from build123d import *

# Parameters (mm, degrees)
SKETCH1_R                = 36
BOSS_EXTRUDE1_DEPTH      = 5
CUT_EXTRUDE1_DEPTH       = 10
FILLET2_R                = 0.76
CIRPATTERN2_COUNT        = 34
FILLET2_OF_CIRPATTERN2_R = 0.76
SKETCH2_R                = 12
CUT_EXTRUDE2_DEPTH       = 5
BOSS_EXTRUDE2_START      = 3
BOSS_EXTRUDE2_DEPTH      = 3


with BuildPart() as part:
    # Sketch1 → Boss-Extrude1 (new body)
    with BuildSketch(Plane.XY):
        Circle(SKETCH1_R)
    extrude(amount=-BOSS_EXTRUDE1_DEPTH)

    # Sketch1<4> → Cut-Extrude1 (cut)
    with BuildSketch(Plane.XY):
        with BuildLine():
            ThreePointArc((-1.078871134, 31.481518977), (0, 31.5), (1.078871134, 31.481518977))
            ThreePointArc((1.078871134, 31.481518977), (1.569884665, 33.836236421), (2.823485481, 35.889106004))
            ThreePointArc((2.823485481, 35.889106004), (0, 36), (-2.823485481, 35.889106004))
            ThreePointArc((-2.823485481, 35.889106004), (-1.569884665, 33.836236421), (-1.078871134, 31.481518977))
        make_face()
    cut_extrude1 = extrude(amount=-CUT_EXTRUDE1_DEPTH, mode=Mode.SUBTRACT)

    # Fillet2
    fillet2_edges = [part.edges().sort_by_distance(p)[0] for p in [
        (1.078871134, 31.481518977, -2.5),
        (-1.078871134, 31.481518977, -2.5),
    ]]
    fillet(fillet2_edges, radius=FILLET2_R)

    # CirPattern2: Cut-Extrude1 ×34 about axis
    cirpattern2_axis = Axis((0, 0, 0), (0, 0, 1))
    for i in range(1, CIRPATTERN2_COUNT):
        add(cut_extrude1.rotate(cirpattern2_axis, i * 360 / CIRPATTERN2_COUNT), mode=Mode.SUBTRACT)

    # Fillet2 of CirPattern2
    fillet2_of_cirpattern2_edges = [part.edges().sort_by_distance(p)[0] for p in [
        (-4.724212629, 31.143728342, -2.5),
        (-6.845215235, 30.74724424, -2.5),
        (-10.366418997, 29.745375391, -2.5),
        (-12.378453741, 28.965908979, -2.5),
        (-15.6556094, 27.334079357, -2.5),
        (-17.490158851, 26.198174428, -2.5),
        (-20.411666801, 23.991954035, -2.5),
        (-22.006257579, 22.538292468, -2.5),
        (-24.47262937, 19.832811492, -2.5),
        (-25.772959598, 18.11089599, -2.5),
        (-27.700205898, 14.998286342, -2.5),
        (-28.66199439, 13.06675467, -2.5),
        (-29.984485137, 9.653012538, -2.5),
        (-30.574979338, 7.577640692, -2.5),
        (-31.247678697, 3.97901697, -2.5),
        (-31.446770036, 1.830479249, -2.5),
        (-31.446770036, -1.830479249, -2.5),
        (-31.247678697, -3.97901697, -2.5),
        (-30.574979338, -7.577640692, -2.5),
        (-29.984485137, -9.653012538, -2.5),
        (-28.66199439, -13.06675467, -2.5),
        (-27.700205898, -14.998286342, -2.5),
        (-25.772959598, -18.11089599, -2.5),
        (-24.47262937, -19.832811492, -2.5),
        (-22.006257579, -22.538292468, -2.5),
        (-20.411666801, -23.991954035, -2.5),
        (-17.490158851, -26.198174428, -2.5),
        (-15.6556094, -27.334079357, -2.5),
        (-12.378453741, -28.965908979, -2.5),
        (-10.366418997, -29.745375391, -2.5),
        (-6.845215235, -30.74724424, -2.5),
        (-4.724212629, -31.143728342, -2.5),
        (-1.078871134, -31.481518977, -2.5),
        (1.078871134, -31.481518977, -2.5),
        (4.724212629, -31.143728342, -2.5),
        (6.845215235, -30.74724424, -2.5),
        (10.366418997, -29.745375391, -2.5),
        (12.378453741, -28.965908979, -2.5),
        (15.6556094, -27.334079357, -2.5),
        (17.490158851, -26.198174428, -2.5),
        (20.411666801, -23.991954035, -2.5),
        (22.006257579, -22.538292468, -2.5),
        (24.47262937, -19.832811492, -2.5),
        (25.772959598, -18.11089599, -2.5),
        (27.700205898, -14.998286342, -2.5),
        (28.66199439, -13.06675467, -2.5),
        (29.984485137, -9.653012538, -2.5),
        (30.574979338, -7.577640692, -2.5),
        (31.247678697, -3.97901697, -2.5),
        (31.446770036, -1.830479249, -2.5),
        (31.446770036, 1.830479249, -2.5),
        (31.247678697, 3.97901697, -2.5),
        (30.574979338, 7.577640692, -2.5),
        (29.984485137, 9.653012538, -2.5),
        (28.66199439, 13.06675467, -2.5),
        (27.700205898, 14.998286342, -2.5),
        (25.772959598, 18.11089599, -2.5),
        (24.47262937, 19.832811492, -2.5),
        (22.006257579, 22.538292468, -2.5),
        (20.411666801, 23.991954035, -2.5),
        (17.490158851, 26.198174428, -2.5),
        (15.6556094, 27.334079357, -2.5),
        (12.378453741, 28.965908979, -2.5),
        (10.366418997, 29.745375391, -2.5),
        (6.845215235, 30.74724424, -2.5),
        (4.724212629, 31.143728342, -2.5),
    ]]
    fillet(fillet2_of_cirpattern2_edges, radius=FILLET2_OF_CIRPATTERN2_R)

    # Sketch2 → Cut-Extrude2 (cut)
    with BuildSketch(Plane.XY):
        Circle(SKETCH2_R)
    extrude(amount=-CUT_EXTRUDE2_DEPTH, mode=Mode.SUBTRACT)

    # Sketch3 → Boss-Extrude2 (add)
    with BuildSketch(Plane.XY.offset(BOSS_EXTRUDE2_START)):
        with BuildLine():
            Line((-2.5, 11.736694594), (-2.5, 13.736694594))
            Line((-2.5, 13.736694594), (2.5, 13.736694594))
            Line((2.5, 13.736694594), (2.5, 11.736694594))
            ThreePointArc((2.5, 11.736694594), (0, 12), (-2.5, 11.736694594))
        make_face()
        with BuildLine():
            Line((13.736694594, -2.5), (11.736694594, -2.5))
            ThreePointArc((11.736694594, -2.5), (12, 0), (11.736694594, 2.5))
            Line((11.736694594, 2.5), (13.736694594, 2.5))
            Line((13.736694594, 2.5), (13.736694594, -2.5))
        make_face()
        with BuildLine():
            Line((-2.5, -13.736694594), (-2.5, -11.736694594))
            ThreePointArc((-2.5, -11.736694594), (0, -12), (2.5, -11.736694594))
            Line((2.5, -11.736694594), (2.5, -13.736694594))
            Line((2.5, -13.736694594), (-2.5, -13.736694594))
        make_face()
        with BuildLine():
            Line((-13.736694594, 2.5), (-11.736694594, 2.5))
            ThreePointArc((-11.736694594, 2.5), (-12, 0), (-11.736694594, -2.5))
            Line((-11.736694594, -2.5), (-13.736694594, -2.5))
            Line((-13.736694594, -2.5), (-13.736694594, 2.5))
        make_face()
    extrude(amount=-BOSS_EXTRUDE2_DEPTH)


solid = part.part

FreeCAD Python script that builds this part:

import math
import FreeCAD as App
import Part
import Sketcher


def edges_at(feature, points):
    """Names of the edges that pass closest to the given points."""
    edges = feature.Shape.Edges
    near = lambda p: min(range(len(edges)), key=lambda i: edges[i].distToShape(Part.Vertex(*p))[0])
    return sorted({f"Edge{near(p) + 1}" for p in points})

doc = App.newDocument("Part")
body = doc.addObject("PartDesign::Body", "Body")

# Sketch on XY plane
sketch1 = body.newObject("Sketcher::SketchObject", "Sketch")
sketch1.AttachmentSupport = (doc.getObject("XY_Plane"), [""])
sketch1.MapMode = "FlatFace"
sketch1.addGeometry(Part.Circle(App.Vector(0, 0, 0), App.Vector(0, 0, 1), 36), False)
sketch1.addConstraint([
    Sketcher.Constraint("Coincident", 0, 3, -1, 1),
    Sketcher.Constraint("Diameter", 0, 72.0),
])
pad1 = body.newObject("PartDesign::Pad", "Pad")
pad1.Profile = sketch1
pad1.Length = 5
pad1.Reversed = True

# Sketch on XY plane
sketch2 = body.newObject("Sketcher::SketchObject", "Sketch001")
sketch2.AttachmentSupport = (doc.getObject("XY_Plane"), [""])
sketch2.MapMode = "FlatFace"
sketch2.addGeometry([
    Part.ArcOfCircle(Part.Circle(App.Vector(0, -0.000001, 0), App.Vector(0, 0, 1), 31.500001), math.radians(88.037243), math.radians(91.962757)),
    Part.ArcOfCircle(Part.Circle(App.Vector(8.129253, 31.239903, 0), App.Vector(0, 0, 1), 7.05452), math.radians(138.773384), math.radians(178.037243)),
    Part.ArcOfCircle(Part.Circle(App.Vector(0, 0, 0), App.Vector(0, 0, 1), 36), math.radians(85.501663), math.radians(94.498337)),
    Part.ArcOfCircle(Part.Circle(App.Vector(-8.129253, 31.239903, 0), App.Vector(0, 0, 1), 7.05452), math.radians(1.962757), math.radians(41.226616)),
], False)
sketch2.addConstraint([
    Sketcher.Constraint("Coincident", 0, 1, 1, 2),
    Sketcher.Constraint("Coincident", 1, 1, 2, 1),
    Sketcher.Constraint("Coincident", 2, 2, 3, 2),
    Sketcher.Constraint("Coincident", 3, 1, 0, 2),
    Sketcher.Constraint("Coincident", 0, 3, -1, 1),
    Sketcher.Constraint("Coincident", 2, 3, -1, 1),
    Sketcher.Constraint("Equal", 1, 3),
    Sketcher.Constraint("Symmetric", 1, 3, 3, 3, -2),
    Sketcher.Constraint("Radius", 2, 36.0),
    Sketcher.Constraint("Radius", 0, 31.500001),
    Sketcher.Constraint("Radius", 1, 7.05452),
    Sketcher.Constraint("DistanceX", -1, 1, 0, 1, 1.078871),
    Sketcher.Constraint("DistanceX", 3, 3, 1, 1, 10.952738),
])
pocket1 = body.newObject("PartDesign::Pocket", "Pocket")
pocket1.Profile = sketch2
pocket1.Length = 10
doc.recompute()

fillet = body.newObject("PartDesign::Fillet", "Fillet")
fillet.Base = (pocket1, edges_at(pocket1, [(1.079, 31.482, -2.5), (-1.079, 31.482, -2.5)]))
fillet.Radius = 0.76
doc.recompute()

polarpattern = body.newObject("PartDesign::PolarPattern", "PolarPattern")
polarpattern.Originals = [pocket1]
polarpattern.Axis = (doc.getObject("Z_Axis"), [""])
polarpattern.Angle = 360
polarpattern.Occurrences = 34
body.Tip = polarpattern
doc.recompute()

fillet2 = body.newObject("PartDesign::Fillet", "Fillet001")
fillet2.Base = (polarpattern, edges_at(polarpattern, [
    (-4.724, 31.144, -2.5),
    (-6.845, 30.747, -2.5),
    (-10.366, 29.745, -2.5),
    (-12.378, 28.966, -2.5),
    (-15.656, 27.334, -2.5),
    (-17.49, 26.198, -2.5),
    (-20.412, 23.992, -2.5),
    (-22.006, 22.538, -2.5),
    (-24.473, 19.833, -2.5),
    (-25.773, 18.111, -2.5),
    (-27.7, 14.998, -2.5),
    (-28.662, 13.067, -2.5),
    (-29.984, 9.653, -2.5),
    (-30.575, 7.578, -2.5),
    (-31.248, 3.979, -2.5),
    (-31.447, 1.83, -2.5),
    (-31.447, -1.83, -2.5),
    (-31.248, -3.979, -2.5),
    (-30.575, -7.578, -2.5),
    (-29.984, -9.653, -2.5),
    (-28.662, -13.067, -2.5),
    (-27.7, -14.998, -2.5),
    (-25.773, -18.111, -2.5),
    (-24.473, -19.833, -2.5),
    (-22.006, -22.538, -2.5),
    (-20.412, -23.992, -2.5),
    (-17.49, -26.198, -2.5),
    (-15.656, -27.334, -2.5),
    (-12.378, -28.966, -2.5),
    (-10.366, -29.745, -2.5),
    (-6.845, -30.747, -2.5),
    (-4.724, -31.144, -2.5),
    (-1.079, -31.482, -2.5),
    (1.079, -31.482, -2.5),
    (4.724, -31.144, -2.5),
    (6.845, -30.747, -2.5),
    (10.366, -29.745, -2.5),
    (12.378, -28.966, -2.5),
    (15.656, -27.334, -2.5),
    (17.49, -26.198, -2.5),
    (20.412, -23.992, -2.5),
    (22.006, -22.538, -2.5),
    (24.473, -19.833, -2.5),
    (25.773, -18.111, -2.5),
    (27.7, -14.998, -2.5),
    (28.662, -13.067, -2.5),
    (29.984, -9.653, -2.5),
    (30.575, -7.578, -2.5),
    (31.248, -3.979, -2.5),
    (31.447, -1.83, -2.5),
    (31.447, 1.83, -2.5),
    (31.248, 3.979, -2.5),
    (30.575, 7.578, -2.5),
    (29.984, 9.653, -2.5),
    (28.662, 13.067, -2.5),
    (27.7, 14.998, -2.5),
    (25.773, 18.111, -2.5),
    (24.473, 19.833, -2.5),
    (22.006, 22.538, -2.5),
    (20.412, 23.992, -2.5),
    (17.49, 26.198, -2.5),
    (15.656, 27.334, -2.5),
    (12.378, 28.966, -2.5),
    (10.366, 29.745, -2.5),
    (6.845, 30.747, -2.5),
    (4.724, 31.144, -2.5),
]))
fillet2.Radius = 0.76

# Sketch on XY plane
sketch3 = body.newObject("Sketcher::SketchObject", "Sketch002")
sketch3.AttachmentSupport = (doc.getObject("XY_Plane"), [""])
sketch3.MapMode = "FlatFace"
sketch3.addGeometry(Part.Circle(App.Vector(0, 0, 0), App.Vector(0, 0, 1), 12), False)
sketch3.addConstraint([
    Sketcher.Constraint("Coincident", 0, 3, -1, 1),
    Sketcher.Constraint("Diameter", 0, 24.0),
])
pocket2 = body.newObject("PartDesign::Pocket", "Pocket001")
pocket2.Profile = sketch3
pocket2.Length = 5

# Sketch on XY plane
sketch4 = body.newObject("Sketcher::SketchObject", "Sketch003")
sketch4.AttachmentSupport = (doc.getObject("XY_Plane"), [""])
sketch4.MapMode = "FlatFace"
sketch4.AttachmentOffset = App.Placement(App.Vector(0, 0, 3), App.Rotation())
sketch4.addGeometry([
    Part.LineSegment(App.Vector(-2.5, 13.736695, 0), App.Vector(-2.5, 11.736695, 0)),  # 0
    Part.ArcOfCircle(Part.Circle(App.Vector(0, 0, 0), App.Vector(0, 0, 1), 12), math.radians(77.975301), math.radians(102.024699)),  # 1
    Part.LineSegment(App.Vector(2.5, 11.736695, 0), App.Vector(2.5, 13.736695, 0)),  # 2
    Part.LineSegment(App.Vector(2.5, 13.736695, 0), App.Vector(-2.5, 13.736695, 0)),  # 3
    Part.LineSegment(App.Vector(11.736695, -2.5, 0), App.Vector(13.736695, -2.5, 0)),  # 4
    Part.LineSegment(App.Vector(13.736695, -2.5, 0), App.Vector(13.736695, 2.5, 0)),  # 5
    Part.LineSegment(App.Vector(13.736695, 2.5, 0), App.Vector(11.736695, 2.5, 0)),  # 6
    Part.ArcOfCircle(Part.Circle(App.Vector(0, 0, 0), App.Vector(0, 0, 1), 12), math.radians(-12.024699), math.radians(12.024699)),  # 7
    Part.LineSegment(App.Vector(-2.5, -11.736695, 0), App.Vector(-2.5, -13.736695, 0)),  # 8
    Part.LineSegment(App.Vector(-2.5, -13.736695, 0), App.Vector(2.5, -13.736695, 0)),  # 9
    Part.LineSegment(App.Vector(2.5, -13.736695, 0), App.Vector(2.5, -11.736695, 0)),  # 10
    Part.ArcOfCircle(Part.Circle(App.Vector(0, 0, 0), App.Vector(0, 0, 1), 12), math.radians(-102.024699), math.radians(-77.975301)),  # 11
    Part.LineSegment(App.Vector(-11.736695, 2.5, 0), App.Vector(-13.736695, 2.5, 0)),  # 12
    Part.LineSegment(App.Vector(-13.736695, 2.5, 0), App.Vector(-13.736695, -2.5, 0)),  # 13
    Part.LineSegment(App.Vector(-13.736695, -2.5, 0), App.Vector(-11.736695, -2.5, 0)),  # 14
    Part.ArcOfCircle(Part.Circle(App.Vector(0, 0, 0), App.Vector(0, 0, 1), 12), math.radians(167.975301), math.radians(192.024699)),  # 15
], False)
sketch4.addConstraint([
    Sketcher.Constraint("Coincident", 0, 2, 1, 2),
    Sketcher.Constraint("Coincident", 1, 1, 2, 1),
    Sketcher.Constraint("Coincident", 2, 2, 3, 1),
    Sketcher.Constraint("Coincident", 3, 2, 0, 1),
    Sketcher.Constraint("Coincident", 4, 2, 5, 1),
    Sketcher.Constraint("Coincident", 5, 2, 6, 1),
    Sketcher.Constraint("Coincident", 6, 2, 7, 2),
    Sketcher.Constraint("Coincident", 7, 1, 4, 1),
    Sketcher.Constraint("Coincident", 8, 2, 9, 1),
    Sketcher.Constraint("Coincident", 9, 2, 10, 1),
    Sketcher.Constraint("Coincident", 10, 2, 11, 2),
    Sketcher.Constraint("Coincident", 11, 1, 8, 1),
    Sketcher.Constraint("Coincident", 12, 2, 13, 1),
    Sketcher.Constraint("Coincident", 13, 2, 14, 1),
    Sketcher.Constraint("Coincident", 14, 2, 15, 2),
    Sketcher.Constraint("Coincident", 15, 1, 12, 1),
    Sketcher.Constraint("Vertical", 0),
    Sketcher.Constraint("Vertical", 2),
    Sketcher.Constraint("Horizontal", 3),
    Sketcher.Constraint("Horizontal", 4),
    Sketcher.Constraint("Vertical", 5),
    Sketcher.Constraint("Horizontal", 6),
    Sketcher.Constraint("Vertical", 8),
    Sketcher.Constraint("Horizontal", 9),
    Sketcher.Constraint("Vertical", 10),
    Sketcher.Constraint("Horizontal", 12),
    Sketcher.Constraint("Vertical", 13),
    Sketcher.Constraint("Horizontal", 14),
    Sketcher.Constraint("Coincident", 1, 3, -1, 1),
    Sketcher.Constraint("Coincident", 7, 3, -1, 1),
    Sketcher.Constraint("Coincident", 11, 3, -1, 1),
    Sketcher.Constraint("Coincident", 15, 3, -1, 1),
    Sketcher.Constraint("Equal", 1, 7),
    Sketcher.Constraint("Equal", 7, 11),
    Sketcher.Constraint("Equal", 11, 15),
    Sketcher.Constraint("Symmetric", 2, 2, 8, 2, -1, 1),
    Sketcher.Constraint("Symmetric", 4, 2, 12, 2, -1, 1),
    Sketcher.Constraint("Horizontal", 0, 2, 1, 1),
    Sketcher.Constraint("Horizontal", 10, 2, 11, 1),
    Sketcher.Constraint("Horizontal", 6, 2, 12, 2),
    Sketcher.Constraint("Horizontal", 7, 1, 13, 2),
    Sketcher.Constraint("Equal", 14, 0),
    Sketcher.Constraint("Equal", 9, 5),
    Sketcher.Constraint("Radius", 1, 12.0),
    Sketcher.Constraint("DistanceX", 3, 2, 3, 1, 5.0),
    Sketcher.Constraint("DistanceX", 4, 1, 4, 2, 2.0),
])
pad2 = body.newObject("PartDesign::Pad", "Pad001")
pad2.Profile = sketch4
pad2.Length = 3
pad2.Reversed = True

doc.recompute()
